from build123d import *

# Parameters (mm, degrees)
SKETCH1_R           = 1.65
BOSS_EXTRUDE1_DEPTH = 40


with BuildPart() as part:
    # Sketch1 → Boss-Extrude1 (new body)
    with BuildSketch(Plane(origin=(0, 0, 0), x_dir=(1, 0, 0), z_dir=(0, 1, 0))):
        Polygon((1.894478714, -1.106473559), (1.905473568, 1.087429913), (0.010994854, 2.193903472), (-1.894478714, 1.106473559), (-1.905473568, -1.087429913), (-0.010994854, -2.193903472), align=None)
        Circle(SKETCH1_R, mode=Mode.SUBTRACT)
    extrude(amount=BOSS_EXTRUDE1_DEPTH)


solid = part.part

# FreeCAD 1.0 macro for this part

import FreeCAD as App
import Part
import Sketcher
Q = App.Units.Quantity

doc = App.newDocument("Part")
body = doc.addObject("PartDesign::Body", "Body")

# Sketch on XZ plane
sketch1 = body.newObject("Sketcher::SketchObject", "Sketch")
sketch1.AttachmentSupport = (doc.getObject("XZ_Plane"), [""])
sketch1.MapMode = "FlatFace"
sketch1.addGeometry([
    Part.LineSegment(App.Vector(1.9, 1.1, 0), App.Vector(1.9, -1.1, 0)),  # 0
    Part.LineSegment(App.Vector(1.9, -1.1, 0), App.Vector(0, -2.2, 0)),  # 1
    Part.LineSegment(App.Vector(0, -2.2, 0), App.Vector(-1.9, -1.1, 0)),  # 2
    Part.LineSegment(App.Vector(-1.9, -1.1, 0), App.Vector(-1.9, 1.1, 0)),  # 3
    Part.LineSegment(App.Vector(-1.9, 1.1, 0), App.Vector(0, 2.2, 0)),  # 4
    Part.LineSegment(App.Vector(0, 2.2, 0), App.Vector(1.9, 1.1, 0)),  # 5
    Part.Circle(App.Vector(0, 0, 0), App.Vector(0, 0, 1), 1.6),  # 6
], False)
sketch1.addConstraint([
    Sketcher.Constraint("Coincident", 0, 2, 1, 1),
    Sketcher.Constraint("Coincident", 1, 2, 2, 1),
    Sketcher.Constraint("Coincident", 2, 2, 3, 1),
    Sketcher.Constraint("Coincident", 3, 2, 4, 1),
    Sketcher.Constraint("Coincident", 4, 2, 5, 1),
    Sketcher.Constraint("Coincident", 5, 2, 0, 1),
    Sketcher.Constraint("Coincident", 6, 3, -1, 1),
    Sketcher.Constraint("Symmetric", 0, 2, 3, 2, -1, 1),
    Sketcher.Constraint("Symmetric", 1, 2, 4, 2, -1, 1),
    Sketcher.Constraint("Symmetric", 2, 2, 5, 2, -1, 1),
    Sketcher.Constraint("Equal", 0, 1),
    Sketcher.Constraint("Equal", 1, 2),
    Sketcher.Constraint("Diameter", 6, Q("3.3 mm")),
    Sketcher.Constraint("Distance", 0, Q("2.193931 mm")),
    Sketcher.Constraint("DistanceY", 0, 2, -1, 1, Q("1.08743 mm")),
    Sketcher.Constraint("DistanceX", 2, 2, -1, 1, Q("1.894479 mm")),
    Sketcher.Constraint("DistanceX", 1, 2, 0, 2, Q("1.894479 mm")),
])
pad1 = body.newObject("PartDesign::Pad", "Pad")
pad1.Profile = sketch1
pad1.Length = 40
pad1.Reversed = True

doc.recompute()
